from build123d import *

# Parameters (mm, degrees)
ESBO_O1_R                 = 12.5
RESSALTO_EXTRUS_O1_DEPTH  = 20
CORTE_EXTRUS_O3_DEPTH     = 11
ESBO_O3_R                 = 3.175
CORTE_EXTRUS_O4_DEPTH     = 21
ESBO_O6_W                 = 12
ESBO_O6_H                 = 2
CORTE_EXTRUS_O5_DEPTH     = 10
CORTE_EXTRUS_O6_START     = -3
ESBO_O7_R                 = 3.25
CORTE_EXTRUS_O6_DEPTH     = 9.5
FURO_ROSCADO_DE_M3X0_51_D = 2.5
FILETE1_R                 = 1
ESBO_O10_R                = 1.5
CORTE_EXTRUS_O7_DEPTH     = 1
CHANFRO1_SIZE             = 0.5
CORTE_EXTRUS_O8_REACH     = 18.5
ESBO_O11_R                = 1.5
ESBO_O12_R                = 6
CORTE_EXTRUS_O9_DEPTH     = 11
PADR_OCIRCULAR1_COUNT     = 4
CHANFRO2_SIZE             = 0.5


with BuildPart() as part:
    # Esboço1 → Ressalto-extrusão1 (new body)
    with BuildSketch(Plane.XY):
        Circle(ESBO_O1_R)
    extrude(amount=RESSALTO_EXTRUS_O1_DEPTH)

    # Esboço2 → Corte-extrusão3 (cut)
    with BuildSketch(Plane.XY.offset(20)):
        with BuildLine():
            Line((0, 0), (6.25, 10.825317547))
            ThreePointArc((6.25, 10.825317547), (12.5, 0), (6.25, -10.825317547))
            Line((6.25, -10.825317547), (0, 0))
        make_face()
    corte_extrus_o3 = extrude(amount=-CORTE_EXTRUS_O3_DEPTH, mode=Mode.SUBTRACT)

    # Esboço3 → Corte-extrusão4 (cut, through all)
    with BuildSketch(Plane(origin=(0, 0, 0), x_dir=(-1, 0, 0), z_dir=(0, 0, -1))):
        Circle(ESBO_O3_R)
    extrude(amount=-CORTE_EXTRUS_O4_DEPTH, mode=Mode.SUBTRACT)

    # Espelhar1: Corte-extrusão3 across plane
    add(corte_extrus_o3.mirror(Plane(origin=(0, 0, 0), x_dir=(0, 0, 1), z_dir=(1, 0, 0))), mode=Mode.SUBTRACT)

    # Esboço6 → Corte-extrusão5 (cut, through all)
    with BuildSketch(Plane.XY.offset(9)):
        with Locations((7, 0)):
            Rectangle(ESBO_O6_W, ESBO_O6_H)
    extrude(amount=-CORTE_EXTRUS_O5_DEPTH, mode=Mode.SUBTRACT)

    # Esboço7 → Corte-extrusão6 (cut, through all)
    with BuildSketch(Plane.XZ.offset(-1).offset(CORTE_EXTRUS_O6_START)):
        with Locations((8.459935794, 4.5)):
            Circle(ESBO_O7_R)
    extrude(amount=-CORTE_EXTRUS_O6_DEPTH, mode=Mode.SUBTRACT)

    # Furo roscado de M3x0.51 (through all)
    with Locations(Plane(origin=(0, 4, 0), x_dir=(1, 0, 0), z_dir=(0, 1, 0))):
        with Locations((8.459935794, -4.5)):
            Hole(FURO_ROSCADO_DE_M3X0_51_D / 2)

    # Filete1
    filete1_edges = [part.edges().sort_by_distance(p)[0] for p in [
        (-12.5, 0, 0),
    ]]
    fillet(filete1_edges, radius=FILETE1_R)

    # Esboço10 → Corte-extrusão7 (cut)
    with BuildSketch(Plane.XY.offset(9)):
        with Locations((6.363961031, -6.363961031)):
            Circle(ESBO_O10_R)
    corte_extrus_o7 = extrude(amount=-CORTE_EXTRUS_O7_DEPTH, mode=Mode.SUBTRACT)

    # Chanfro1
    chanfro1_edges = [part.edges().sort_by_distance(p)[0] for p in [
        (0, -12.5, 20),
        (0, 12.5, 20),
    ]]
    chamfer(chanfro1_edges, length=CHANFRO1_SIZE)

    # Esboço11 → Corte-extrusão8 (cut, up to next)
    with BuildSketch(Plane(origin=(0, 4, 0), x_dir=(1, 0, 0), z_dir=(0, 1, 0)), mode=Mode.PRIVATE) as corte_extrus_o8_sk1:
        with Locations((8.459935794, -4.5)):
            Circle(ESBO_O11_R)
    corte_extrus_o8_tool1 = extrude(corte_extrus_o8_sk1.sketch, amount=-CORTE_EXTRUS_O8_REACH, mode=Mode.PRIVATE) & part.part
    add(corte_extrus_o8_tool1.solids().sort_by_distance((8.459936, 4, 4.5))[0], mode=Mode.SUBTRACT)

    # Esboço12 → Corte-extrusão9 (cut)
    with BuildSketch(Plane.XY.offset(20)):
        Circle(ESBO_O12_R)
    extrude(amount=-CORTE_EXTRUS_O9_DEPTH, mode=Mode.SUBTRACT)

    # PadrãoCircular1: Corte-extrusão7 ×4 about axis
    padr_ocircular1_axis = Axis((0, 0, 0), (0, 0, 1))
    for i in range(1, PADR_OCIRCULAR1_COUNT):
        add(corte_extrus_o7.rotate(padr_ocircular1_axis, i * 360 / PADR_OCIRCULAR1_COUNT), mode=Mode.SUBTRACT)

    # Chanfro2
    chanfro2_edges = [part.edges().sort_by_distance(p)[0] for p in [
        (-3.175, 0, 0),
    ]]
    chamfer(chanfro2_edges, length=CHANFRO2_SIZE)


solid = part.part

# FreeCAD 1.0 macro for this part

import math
import FreeCAD as App
import Part
import Sketcher
Q = App.Units.Quantity


def edges_at(feature, points):
    """Names of the edges that pass closest to the given points."""
    edges = feature.Shape.Edges
    near = lambda p: min(range(len(edges)), key=lambda i: edges[i].distToShape(Part.Vertex(*p))[0])
    return sorted({f"Edge{near(p) + 1}" for p in points})


def add_polygon(sketch, points):
    """Adds a closed chain of lines whose ends are joined by coincident constraints."""
    first, n = sketch.GeometryCount, len(points)
    for a, b in zip(points, points[1:] + points[:1]):
        sketch.addGeometry(Part.LineSegment(App.Vector(*a, 0), App.Vector(*b, 0)), False)
    for i in range(n):
        sketch.addConstraint(Sketcher.Constraint("Coincident", first + i, 2, first + (i + 1) % n, 1))

doc = App.newDocument("Part")
params = doc.addObject("Spreadsheet::Sheet", "Params")
for row, (alias, value) in enumerate([
    ("sketch1_diameter", "25 mm"),
    ("pad1_length", "20 mm"),
    ("sketch2_radius", "12.5 mm"),
    ("pocket1_length", "11 mm"),
    ("sketch3_diameter", "6.35 mm"),
    ("sketch4_width", "12 mm"),
    ("sketch4_height", "2 mm"),
    ("sketch5_diameter", "6.5 mm"),
    ("sketch6_diameter", "2.5 mm"),
    ("hole_diameter", "2.5 mm"),
    ("fillet_radius", "1 mm"),
    ("sketch7_diameter", "3 mm"),
    ("pocket5_length", "1 mm"),
    ("chamfer_size", "0.5 mm"),
    ("sketch8_diameter", "3 mm"),
    ("pocket6_length", "3 mm"),
    ("sketch9_diameter", "12 mm"),
    ("pocket7_length", "11 mm"),
    ("chamfer2_size", "0.5 mm"),
], start=1):
    params.set(f"A{row}", alias)
    params.set(f"B{row}", "=" + value)
    params.setAlias(f"B{row}", alias)

body = doc.addObject("PartDesign::Body", "Body")

# Sketch on XY plane
sketch1 = doc.addObject("Sketcher::SketchObject", "Sketch")
body.addObject(sketch1)
sketch1.AttachmentSupport = (doc.XY_Plane, [""])
sketch1.MapMode = "FlatFace"
sketch1.addGeometry(Part.Circle(App.Vector(0, 0, 0), App.Vector(0, 0, 1), 12.5), False)
sketch1.addConstraint(Sketcher.Constraint("Coincident", 0, 3, -1, 1))
sketch1.addConstraint(Sketcher.Constraint("Diameter", 0, Q("25 mm")))
sketch1.setExpression("Constraints[1]", "Params.sketch1_diameter")
pad1 = doc.addObject("PartDesign::Pad", "Pad")
body.addObject(pad1)
pad1.Profile = sketch1
pad1.setExpression("Length", "Params.pad1_length")

# Sketch on XY plane
sketch2 = doc.addObject("Sketcher::SketchObject", "Sketch001")
body.addObject(sketch2)
sketch2.AttachmentSupport = (doc.XY_Plane, [""])
sketch2.MapMode = "FlatFace"
sketch2.AttachmentOffset = App.Placement(App.Vector(0, 0, 20), App.Rotation())
sketch2.addGeometry(Part.LineSegment(App.Vector(6.25, 10.825318, 0), App.Vector(0, 0, 0)), False)
sketch2.addGeometry(Part.LineSegment(App.Vector(0, 0, 0), App.Vector(6.25, -10.825318, 0)), False)
sketch2.addGeometry(Part.ArcOfCircle(Part.Circle(App.Vector(0, 0, 0), App.Vector(0, 0, 1), 12.5), math.radians(-60), math.radians(60)), False)
sketch2.addConstraint(Sketcher.Constraint("Coincident", 0, 2, 1, 1))
sketch2.addConstraint(Sketcher.Constraint("Coincident", 1, 2, 2, 1))
sketch2.addConstraint(Sketcher.Constraint("Coincident", 2, 2, 0, 1))
sketch2.addConstraint(Sketcher.Constraint("Coincident", 2, 3, -1, 1))
sketch2.addConstraint(Sketcher.Constraint("Coincident", 0, 2, -1, 1))
sketch2.addConstraint(Sketcher.Constraint("Vertical", 1, 2, 2, 2))
sketch2.addConstraint(Sketcher.Constraint("Radius", 2, Q("12.5 mm")))
sketch2.addConstraint(Sketcher.Constraint("Angle", 0, Q("-120 deg")))
sketch2.setExpression("Constraints[6]", "Params.sketch2_radius")
pocket1 = doc.addObject("PartDesign::Pocket", "Pocket")
body.addObject(pocket1)
pocket1.Profile = sketch2
pocket1.setExpression("Length", "Params.pocket1_length")

# Sketch on XY plane
sketch3 = doc.addObject("Sketcher::SketchObject", "Sketch002")
body.addObject(sketch3)
sketch3.AttachmentSupport = (doc.XY_Plane, [""])
sketch3.MapMode = "FlatFace"
sketch3.addGeometry(Part.Circle(App.Vector(0, 0, 0), App.Vector(0, 0, 1), 3.175), False)
sketch3.addConstraint(Sketcher.Constraint("Coincident", 0, 3, -1, 1))
sketch3.addConstraint(Sketcher.Constraint("Diameter", 0, Q("6.35 mm")))
sketch3.setExpression("Constraints[1]", "Params.sketch3_diameter")
pocket2 = doc.addObject("PartDesign::Pocket", "Pocket001")
body.addObject(pocket2)
pocket2.Profile = sketch3
pocket2.Type = "ThroughAll"
pocket2.Reversed = True
doc.recompute()

mirrored = doc.addObject("PartDesign::Mirrored", "Mirrored")
body.addObject(mirrored)
mirrored.Originals = [pocket1]
mirrored.MirrorPlane = (doc.YZ_Plane, [""])
body.Tip = mirrored

# Sketch on XY plane
sketch4 = doc.addObject("Sketcher::SketchObject", "Sketch003")
body.addObject(sketch4)
sketch4.AttachmentSupport = (doc.XY_Plane, [""])
sketch4.MapMode = "FlatFace"
sketch4.AttachmentOffset = App.Placement(App.Vector(0, 0, 9), App.Rotation())
add_polygon(sketch4, [(1, 1), (1, -1), (13, -1), (13, 1)])  # lines 0-3
sketch4.addConstraint(Sketcher.Constraint("Vertical", 0))
sketch4.addConstraint(Sketcher.Constraint("Horizontal", 1))
sketch4.addConstraint(Sketcher.Constraint("Vertical", 2))
sketch4.addConstraint(Sketcher.Constraint("Horizontal", 3))
sketch4.addConstraint(Sketcher.Constraint("DistanceX", 1, 1, 1, 2, Q("12 mm")))
sketch4.addConstraint(Sketcher.Constraint("DistanceY", 0, 2, 0, 1, Q("2 mm")))
sketch4.addConstraint(Sketcher.Constraint("DistanceX", -1, 1, 0, 2, Q("1 mm")))
sketch4.addConstraint(Sketcher.Constraint("DistanceY", 0, 2, -1, 1, Q("1 mm")))
sketch4.setExpression("Constraints[8]", "Params.sketch4_width")
sketch4.setExpression("Constraints[9]", "Params.sketch4_height")
pocket3 = doc.addObject("PartDesign::Pocket", "Pocket002")
body.addObject(pocket3)
pocket3.Profile = sketch4
pocket3.Type = "ThroughAll"

# Sketch on XZ plane
sketch5 = doc.addObject("Sketcher::SketchObject", "Sketch004")
body.addObject(sketch5)
sketch5.AttachmentSupport = (doc.XZ_Plane, [""])
sketch5.MapMode = "FlatFace"
sketch5.AttachmentOffset = App.Placement(App.Vector(0, 0, -4), App.Rotation())
sketch5.addGeometry(Part.Circle(App.Vector(8.459936, 4.5, 0), App.Vector(0, 0, 1), 3.25), False)
sketch5.addConstraint(Sketcher.Constraint("Diameter", 0, Q("6.5 mm")))
sketch5.addConstraint(Sketcher.Constraint("DistanceY", -1, 1, 0, 3, Q("4.5 mm")))
sketch5.addConstraint(Sketcher.Constraint("DistanceX", -1, 1, 0, 3, Q("8.459936 mm")))
sketch5.setExpression("Constraints[0]", "Params.sketch5_diameter")
pocket4 = doc.addObject("PartDesign::Pocket", "Pocket003")
body.addObject(pocket4)
pocket4.Profile = sketch5
pocket4.Type = "ThroughAll"

# Sketch on XZ plane
sketch6 = doc.addObject("Sketcher::SketchObject", "Sketch005")
body.addObject(sketch6)
sketch6.AttachmentSupport = (doc.XZ_Plane, [""])
sketch6.MapMode = "FlatFace"
sketch6.AttachmentOffset = App.Placement(App.Vector(0, 0, -4), App.Rotation())
sketch6.addGeometry(Part.Circle(App.Vector(8.459936, 4.5, 0), App.Vector(0, 0, 1), 1.25), False)
sketch6.addConstraint(Sketcher.Constraint("Diameter", 0, Q("2.5 mm")))
sketch6.addConstraint(Sketcher.Constraint("DistanceY", -1, 1, 0, 3, Q("4.5 mm")))
sketch6.addConstraint(Sketcher.Constraint("DistanceX", -1, 1, 0, 3, Q("8.459936 mm")))
sketch6.setExpression("Constraints[0]", "Params.sketch6_diameter")
doc.recompute()
hole = doc.addObject("PartDesign::Hole", "Hole")
body.addObject(hole)
hole.Profile = sketch6
hole.ThreadType = "None"
hole.setExpression("Diameter", "Params.hole_diameter")
hole.DepthType = "ThroughAll"
hole.Reversed = True
doc.recompute()

fillet = doc.addObject("PartDesign::Fillet", "Fillet")
body.addObject(fillet)
fillet.Base = (hole, edges_at(hole, [(-12.5, 0, 0)]))
fillet.setExpression("Radius", "Params.fillet_radius")

# Sketch on XY plane
sketch7 = doc.addObject("Sketcher::SketchObject", "Sketch006")
body.addObject(sketch7)
sketch7.AttachmentSupport = (doc.XY_Plane, [""])
sketch7.MapMode = "FlatFace"
sketch7.AttachmentOffset = App.Placement(App.Vector(0, 0, 9), App.Rotation())
sketch7.addGeometry(Part.Circle(App.Vector(6.363961, -6.363961, 0), App.Vector(0, 0, 1), 1.5), False)
sketch7.addConstraint(Sketcher.Constraint("Diameter", 0, Q("3 mm")))
sketch7.addConstraint(Sketcher.Constraint("DistanceX", -1, 1, 0, 3, Q("6.363961 mm")))
sketch7.addConstraint(Sketcher.Constraint("DistanceY", 0, 3, -1, 1, Q("6.363961 mm")))
sketch7.setExpression("Constraints[0]", "Params.sketch7_diameter")
pocket5 = doc.addObject("PartDesign::Pocket", "Pocket004")
body.addObject(pocket5)
pocket5.Profile = sketch7
pocket5.setExpression("Length", "Params.pocket5_length")
doc.recompute()

chamfer = doc.addObject("PartDesign::Chamfer", "Chamfer")
body.addObject(chamfer)
chamfer.Base = (pocket5, edges_at(pocket5, [(0, -12.5, 20), (0, 12.5, 20)]))
chamfer.setExpression("Size", "Params.chamfer_size")

# Sketch on XZ plane
sketch8 = doc.addObject("Sketcher::SketchObject", "Sketch007")
body.addObject(sketch8)
sketch8.AttachmentSupport = (doc.XZ_Plane, [""])
sketch8.MapMode = "FlatFace"
sketch8.AttachmentOffset = App.Placement(App.Vector(0, 0, -4), App.Rotation())
sketch8.addGeometry(Part.Circle(App.Vector(8.459936, 4.5, 0), App.Vector(0, 0, 1), 1.5), False)
sketch8.addConstraint(Sketcher.Constraint("Diameter", 0, Q("3 mm")))
sketch8.addConstraint(Sketcher.Constraint("DistanceY", -1, 1, 0, 3, Q("4.5 mm")))
sketch8.addConstraint(Sketcher.Constraint("DistanceX", -1, 1, 0, 3, Q("8.459936 mm")))
sketch8.setExpression("Constraints[0]", "Params.sketch8_diameter")
pocket6 = doc.addObject("PartDesign::Pocket", "Pocket005")
body.addObject(pocket6)
pocket6.Profile = sketch8
pocket6.setExpression("Length", "Params.pocket6_length")
pocket6.Reversed = True

# Sketch on XY plane
sketch9 = doc.addObject("Sketcher::SketchObject", "Sketch008")
body.addObject(sketch9)
sketch9.AttachmentSupport = (doc.XY_Plane, [""])
sketch9.MapMode = "FlatFace"
sketch9.AttachmentOffset = App.Placement(App.Vector(0, 0, 20), App.Rotation())
sketch9.addGeometry(Part.Circle(App.Vector(0, 0, 0), App.Vector(0, 0, 1), 6), False)
sketch9.addConstraint(Sketcher.Constraint("Coincident", 0, 3, -1, 1))
sketch9.addConstraint(Sketcher.Constraint("Diameter", 0, Q("12 mm")))
sketch9.setExpression("Constraints[1]", "Params.sketch9_diameter")
pocket7 = doc.addObject("PartDesign::Pocket", "Pocket006")
body.addObject(pocket7)
pocket7.Profile = sketch9
pocket7.setExpression("Length", "Params.pocket7_length")
doc.recompute()

polarpattern = doc.addObject("PartDesign::PolarPattern", "PolarPattern")
body.addObject(polarpattern)
polarpattern.Originals = [pocket5]
polarpattern.Axis = (doc.Z_Axis, [""])
polarpattern.Angle = 360
polarpattern.Occurrences = 4
body.Tip = polarpattern
doc.recompute()

chamfer2 = doc.addObject("PartDesign::Chamfer", "Chamfer001")
body.addObject(chamfer2)
chamfer2.Base = (polarpattern, edges_at(polarpattern, [(-3.175, 0, 0)]))
chamfer2.setExpression("Size", "Params.chamfer2_size")

doc.recompute()
